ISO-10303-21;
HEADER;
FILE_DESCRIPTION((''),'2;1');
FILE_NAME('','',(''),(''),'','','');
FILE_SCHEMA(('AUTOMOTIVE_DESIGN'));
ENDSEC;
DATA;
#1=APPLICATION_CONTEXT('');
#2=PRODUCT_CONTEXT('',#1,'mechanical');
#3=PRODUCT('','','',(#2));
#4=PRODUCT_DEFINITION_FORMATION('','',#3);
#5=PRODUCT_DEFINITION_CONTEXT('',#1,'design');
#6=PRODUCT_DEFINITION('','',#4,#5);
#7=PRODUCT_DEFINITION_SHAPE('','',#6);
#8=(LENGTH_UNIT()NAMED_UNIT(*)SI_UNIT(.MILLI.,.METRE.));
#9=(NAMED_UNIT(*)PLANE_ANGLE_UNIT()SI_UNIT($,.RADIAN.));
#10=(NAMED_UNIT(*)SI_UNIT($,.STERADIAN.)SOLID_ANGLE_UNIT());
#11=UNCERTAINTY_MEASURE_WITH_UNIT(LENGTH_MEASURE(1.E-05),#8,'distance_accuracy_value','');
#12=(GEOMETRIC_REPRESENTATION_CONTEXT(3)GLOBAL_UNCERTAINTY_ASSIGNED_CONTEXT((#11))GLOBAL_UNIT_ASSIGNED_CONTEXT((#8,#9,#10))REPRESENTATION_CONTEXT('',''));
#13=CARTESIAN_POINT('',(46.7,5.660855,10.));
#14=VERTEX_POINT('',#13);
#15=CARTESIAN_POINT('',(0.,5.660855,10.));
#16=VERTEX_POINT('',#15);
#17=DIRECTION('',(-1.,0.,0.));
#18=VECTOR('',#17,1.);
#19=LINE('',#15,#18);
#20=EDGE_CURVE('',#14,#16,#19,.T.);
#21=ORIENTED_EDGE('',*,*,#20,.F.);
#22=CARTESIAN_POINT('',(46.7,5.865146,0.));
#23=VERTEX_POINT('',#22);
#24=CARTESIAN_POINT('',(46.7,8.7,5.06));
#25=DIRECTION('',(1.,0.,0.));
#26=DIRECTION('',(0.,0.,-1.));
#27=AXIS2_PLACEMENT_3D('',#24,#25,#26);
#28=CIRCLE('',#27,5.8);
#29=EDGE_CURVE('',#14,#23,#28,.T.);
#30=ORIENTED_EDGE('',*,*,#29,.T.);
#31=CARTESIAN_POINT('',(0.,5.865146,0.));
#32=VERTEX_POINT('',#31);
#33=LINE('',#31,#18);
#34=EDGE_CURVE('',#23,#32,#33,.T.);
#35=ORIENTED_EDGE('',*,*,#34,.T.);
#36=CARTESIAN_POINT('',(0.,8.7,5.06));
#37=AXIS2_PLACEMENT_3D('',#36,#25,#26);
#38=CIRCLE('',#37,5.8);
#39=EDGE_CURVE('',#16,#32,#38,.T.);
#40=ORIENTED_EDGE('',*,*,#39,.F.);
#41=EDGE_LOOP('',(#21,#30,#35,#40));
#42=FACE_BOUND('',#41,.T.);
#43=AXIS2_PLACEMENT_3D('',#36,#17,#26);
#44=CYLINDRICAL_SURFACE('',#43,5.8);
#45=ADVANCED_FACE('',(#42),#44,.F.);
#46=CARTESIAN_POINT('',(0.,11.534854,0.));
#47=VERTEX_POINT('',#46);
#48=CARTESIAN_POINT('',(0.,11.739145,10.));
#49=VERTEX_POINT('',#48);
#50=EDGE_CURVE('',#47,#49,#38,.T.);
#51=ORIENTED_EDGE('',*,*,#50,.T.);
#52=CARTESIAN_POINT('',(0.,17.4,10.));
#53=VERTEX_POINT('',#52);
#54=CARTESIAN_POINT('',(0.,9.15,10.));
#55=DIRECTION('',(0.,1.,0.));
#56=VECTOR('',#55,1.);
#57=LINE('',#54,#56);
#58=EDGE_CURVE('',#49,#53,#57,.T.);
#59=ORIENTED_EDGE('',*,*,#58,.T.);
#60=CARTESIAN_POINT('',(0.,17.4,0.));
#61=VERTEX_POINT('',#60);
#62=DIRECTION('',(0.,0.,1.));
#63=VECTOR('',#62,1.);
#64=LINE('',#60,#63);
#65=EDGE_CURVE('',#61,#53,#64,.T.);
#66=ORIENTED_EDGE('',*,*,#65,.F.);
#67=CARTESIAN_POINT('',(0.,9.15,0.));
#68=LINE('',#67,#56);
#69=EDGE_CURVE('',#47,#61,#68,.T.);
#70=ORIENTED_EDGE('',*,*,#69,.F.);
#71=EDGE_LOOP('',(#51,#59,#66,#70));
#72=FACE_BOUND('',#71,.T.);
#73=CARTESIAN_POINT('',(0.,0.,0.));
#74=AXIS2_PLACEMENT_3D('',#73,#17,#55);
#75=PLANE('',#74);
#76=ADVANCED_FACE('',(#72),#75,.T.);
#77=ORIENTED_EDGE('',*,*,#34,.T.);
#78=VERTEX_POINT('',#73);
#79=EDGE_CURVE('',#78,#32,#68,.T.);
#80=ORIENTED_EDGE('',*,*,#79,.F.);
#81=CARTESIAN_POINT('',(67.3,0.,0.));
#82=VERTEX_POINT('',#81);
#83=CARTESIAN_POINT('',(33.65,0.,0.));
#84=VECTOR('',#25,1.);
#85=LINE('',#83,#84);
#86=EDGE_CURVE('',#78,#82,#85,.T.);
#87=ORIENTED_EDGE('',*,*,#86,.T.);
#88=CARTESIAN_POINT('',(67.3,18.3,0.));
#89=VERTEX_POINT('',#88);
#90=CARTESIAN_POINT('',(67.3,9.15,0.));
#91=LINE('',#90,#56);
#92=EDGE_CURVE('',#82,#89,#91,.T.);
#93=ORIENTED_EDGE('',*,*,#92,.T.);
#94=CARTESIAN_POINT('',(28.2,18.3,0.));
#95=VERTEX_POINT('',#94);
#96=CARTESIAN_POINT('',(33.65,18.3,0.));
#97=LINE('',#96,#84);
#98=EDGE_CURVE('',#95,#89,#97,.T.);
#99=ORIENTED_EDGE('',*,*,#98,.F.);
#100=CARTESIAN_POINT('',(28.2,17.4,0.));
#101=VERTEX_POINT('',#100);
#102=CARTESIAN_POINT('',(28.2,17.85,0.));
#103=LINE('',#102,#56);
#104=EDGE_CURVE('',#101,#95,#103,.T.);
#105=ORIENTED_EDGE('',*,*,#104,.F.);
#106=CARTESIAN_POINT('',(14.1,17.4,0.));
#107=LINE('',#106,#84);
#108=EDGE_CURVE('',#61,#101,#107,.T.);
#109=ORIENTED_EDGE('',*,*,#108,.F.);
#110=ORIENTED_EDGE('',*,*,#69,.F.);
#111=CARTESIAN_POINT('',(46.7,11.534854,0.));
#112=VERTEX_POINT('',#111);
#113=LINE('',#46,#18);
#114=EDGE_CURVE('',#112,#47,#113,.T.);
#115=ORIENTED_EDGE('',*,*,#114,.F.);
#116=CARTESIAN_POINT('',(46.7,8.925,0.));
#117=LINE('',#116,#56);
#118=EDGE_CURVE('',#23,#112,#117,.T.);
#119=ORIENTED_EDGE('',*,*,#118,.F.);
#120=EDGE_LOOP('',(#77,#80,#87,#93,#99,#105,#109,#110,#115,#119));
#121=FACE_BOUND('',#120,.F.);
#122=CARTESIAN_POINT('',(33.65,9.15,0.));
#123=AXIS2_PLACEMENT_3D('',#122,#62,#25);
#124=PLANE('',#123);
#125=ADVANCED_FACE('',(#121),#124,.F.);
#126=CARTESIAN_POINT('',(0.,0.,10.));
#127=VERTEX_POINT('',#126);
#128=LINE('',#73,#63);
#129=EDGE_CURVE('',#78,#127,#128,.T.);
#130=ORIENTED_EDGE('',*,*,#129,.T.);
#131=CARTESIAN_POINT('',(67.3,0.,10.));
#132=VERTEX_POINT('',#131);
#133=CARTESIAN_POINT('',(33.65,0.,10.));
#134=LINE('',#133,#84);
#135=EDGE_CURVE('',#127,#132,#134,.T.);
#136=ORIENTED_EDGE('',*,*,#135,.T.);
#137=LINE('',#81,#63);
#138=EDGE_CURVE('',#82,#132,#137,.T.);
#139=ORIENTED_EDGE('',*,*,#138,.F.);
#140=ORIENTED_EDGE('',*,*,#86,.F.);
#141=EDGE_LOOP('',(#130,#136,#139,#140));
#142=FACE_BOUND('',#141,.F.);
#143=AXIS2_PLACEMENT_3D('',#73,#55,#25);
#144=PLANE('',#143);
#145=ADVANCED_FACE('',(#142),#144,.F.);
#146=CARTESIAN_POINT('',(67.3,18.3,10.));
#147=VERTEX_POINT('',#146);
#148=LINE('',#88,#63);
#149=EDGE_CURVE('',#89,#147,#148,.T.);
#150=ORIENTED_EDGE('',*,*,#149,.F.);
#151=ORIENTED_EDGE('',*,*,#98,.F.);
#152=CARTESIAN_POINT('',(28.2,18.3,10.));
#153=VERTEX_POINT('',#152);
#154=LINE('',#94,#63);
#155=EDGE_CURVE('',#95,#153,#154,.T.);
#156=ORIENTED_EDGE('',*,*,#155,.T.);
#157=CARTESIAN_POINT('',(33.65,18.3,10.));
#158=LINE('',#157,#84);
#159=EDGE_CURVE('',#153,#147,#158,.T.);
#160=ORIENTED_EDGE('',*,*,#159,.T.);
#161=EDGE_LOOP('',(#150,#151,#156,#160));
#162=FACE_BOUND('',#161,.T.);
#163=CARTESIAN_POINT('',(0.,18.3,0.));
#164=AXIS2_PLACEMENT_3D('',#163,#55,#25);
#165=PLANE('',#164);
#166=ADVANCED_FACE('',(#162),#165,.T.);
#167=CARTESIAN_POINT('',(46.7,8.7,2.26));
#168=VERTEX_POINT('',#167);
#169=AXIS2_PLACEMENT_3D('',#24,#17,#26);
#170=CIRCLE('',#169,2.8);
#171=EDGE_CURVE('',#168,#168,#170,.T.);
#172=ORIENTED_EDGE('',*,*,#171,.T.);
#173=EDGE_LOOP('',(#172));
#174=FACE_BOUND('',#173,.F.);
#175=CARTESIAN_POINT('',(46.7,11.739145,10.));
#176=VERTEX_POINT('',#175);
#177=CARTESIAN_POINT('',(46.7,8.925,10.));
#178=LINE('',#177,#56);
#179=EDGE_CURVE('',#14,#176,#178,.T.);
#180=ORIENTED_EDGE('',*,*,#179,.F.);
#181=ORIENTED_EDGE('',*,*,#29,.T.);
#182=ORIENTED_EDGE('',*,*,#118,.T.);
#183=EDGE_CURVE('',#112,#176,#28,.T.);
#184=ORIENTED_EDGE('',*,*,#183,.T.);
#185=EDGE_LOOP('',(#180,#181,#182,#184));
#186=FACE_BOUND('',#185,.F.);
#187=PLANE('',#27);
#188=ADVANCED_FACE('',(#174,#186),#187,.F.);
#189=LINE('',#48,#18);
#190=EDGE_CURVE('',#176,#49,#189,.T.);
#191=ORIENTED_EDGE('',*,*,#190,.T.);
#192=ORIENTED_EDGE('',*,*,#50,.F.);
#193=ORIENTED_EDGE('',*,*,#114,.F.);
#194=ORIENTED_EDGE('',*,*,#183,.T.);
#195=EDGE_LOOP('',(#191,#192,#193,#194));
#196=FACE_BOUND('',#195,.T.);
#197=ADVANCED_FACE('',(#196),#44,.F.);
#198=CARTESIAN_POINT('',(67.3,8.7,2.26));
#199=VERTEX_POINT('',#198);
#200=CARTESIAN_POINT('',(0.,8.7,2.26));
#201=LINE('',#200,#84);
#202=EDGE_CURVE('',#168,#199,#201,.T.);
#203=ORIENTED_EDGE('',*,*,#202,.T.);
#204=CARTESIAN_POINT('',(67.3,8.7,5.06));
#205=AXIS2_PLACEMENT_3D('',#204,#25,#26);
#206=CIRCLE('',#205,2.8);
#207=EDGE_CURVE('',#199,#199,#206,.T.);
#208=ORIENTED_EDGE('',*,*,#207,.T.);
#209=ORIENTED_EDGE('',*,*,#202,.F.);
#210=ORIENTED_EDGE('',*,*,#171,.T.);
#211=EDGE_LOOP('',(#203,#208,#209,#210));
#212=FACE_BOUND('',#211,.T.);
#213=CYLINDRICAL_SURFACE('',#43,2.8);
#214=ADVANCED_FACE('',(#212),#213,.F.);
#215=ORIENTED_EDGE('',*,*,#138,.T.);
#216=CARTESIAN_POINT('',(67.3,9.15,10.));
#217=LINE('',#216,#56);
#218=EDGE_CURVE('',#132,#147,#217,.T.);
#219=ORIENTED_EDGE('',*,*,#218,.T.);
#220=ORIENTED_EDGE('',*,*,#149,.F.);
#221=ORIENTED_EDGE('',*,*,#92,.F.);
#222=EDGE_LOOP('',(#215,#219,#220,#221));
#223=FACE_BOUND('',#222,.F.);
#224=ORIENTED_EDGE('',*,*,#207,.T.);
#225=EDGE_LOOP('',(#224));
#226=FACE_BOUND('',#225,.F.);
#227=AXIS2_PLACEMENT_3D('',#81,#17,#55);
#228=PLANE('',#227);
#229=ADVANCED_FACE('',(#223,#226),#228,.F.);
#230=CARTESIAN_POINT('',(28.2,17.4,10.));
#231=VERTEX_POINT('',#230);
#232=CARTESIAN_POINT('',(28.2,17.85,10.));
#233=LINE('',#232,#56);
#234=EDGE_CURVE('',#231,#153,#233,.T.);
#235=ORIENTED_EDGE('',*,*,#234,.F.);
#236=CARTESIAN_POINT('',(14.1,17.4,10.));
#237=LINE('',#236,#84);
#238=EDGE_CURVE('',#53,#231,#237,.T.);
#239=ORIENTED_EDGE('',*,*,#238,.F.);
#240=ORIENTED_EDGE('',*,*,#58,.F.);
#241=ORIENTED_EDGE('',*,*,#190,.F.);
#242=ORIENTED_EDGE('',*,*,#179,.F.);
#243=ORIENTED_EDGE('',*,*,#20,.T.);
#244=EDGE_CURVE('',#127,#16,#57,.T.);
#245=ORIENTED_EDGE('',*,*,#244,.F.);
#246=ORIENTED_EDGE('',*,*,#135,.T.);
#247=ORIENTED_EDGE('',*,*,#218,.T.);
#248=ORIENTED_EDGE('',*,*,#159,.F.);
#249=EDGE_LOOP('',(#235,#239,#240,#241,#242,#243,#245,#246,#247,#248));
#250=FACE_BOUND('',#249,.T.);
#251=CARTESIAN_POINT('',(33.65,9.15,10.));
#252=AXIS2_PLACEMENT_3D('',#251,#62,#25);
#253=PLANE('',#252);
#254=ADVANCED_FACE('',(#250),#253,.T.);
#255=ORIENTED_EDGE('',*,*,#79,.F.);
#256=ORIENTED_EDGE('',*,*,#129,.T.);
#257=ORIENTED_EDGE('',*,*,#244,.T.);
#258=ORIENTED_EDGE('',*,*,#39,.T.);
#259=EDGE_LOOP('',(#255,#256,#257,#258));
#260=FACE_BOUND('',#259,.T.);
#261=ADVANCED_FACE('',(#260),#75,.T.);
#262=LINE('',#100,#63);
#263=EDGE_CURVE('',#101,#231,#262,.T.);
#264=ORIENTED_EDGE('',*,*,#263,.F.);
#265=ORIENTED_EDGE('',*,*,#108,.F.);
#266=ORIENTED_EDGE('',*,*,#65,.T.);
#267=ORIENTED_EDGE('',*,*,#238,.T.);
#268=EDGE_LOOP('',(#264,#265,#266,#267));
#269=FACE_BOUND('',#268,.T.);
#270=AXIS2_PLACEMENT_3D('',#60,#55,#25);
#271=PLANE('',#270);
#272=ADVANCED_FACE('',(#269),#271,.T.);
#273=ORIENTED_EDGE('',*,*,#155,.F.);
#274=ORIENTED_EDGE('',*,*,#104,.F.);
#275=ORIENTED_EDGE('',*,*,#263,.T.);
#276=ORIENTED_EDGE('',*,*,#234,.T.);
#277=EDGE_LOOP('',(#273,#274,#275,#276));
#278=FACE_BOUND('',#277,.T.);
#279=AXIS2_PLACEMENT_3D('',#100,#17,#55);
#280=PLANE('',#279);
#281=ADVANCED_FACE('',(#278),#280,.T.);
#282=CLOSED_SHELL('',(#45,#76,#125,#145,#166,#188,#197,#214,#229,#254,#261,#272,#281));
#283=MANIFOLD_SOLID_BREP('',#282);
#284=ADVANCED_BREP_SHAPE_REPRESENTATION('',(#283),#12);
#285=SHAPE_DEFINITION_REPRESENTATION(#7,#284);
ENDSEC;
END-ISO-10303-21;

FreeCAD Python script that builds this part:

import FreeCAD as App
import Part
import Sketcher
Q = App.Units.Quantity

doc = App.newDocument("Part")
body = doc.addObject("PartDesign::Body", "Body")

# Sketch on YZ plane
sketch1 = body.newObject("Sketcher::SketchObject", "Sketch")
sketch1.AttachmentSupport = (doc.getObject("YZ_Plane"), [""])
sketch1.MapMode = "FlatFace"
sketch1.addGeometry(Part.Circle(App.Vector(8.7, 5.1, 0), App.Vector(0, 0, 1), 2.8), False)
sketch1.addConstraint([
    Sketcher.Constraint("Diameter", 0, Q("5.6 mm")),
    Sketcher.Constraint("DistanceX", -1, 1, 0, 3, Q("8.7 mm")),
    Sketcher.Constraint("DistanceY", -1, 1, 0, 3, Q("5.06 mm")),
])
pad1 = body.newObject("PartDesign::Pad", "Pad")
pad1.Profile = sketch1
pad1.Length = 67.3
body2 = doc.addObject("PartDesign::Body", "Body001")

# Sketch on YZ plane
sketch2 = body2.newObject("Sketcher::SketchObject", "Sketch001")
sketch2.AttachmentSupport = (doc.getObject("YZ_Plane001"), [""])
sketch2.MapMode = "FlatFace"
sketch2.addGeometry(Part.Circle(App.Vector(9, 5, 0), App.Vector(0, 0, 1), 6), False)
sketch2.addConstraint([
    Sketcher.Constraint("Diameter", 0, Q("11.6 mm")),
    Sketcher.Constraint("DistanceX", -1, 1, 0, 3, Q("8.7 mm")),
    Sketcher.Constraint("DistanceY", -1, 1, 0, 3, Q("5.06 mm")),
])
pad2 = body2.newObject("PartDesign::Pad", "Pad001")
pad2.Profile = sketch2
pad2.Length = 46.7
body3 = doc.addObject("PartDesign::Body", "Body002")

# Sketch on XY plane
sketch3 = body3.newObject("Sketcher::SketchObject", "Sketch002")
sketch3.AttachmentSupport = (doc.getObject("XY_Plane002"), [""])
sketch3.MapMode = "FlatFace"
sketch3.addGeometry([
    Part.LineSegment(App.Vector(0, 18.3, 0), App.Vector(0, 17.4, 0)),
    Part.LineSegment(App.Vector(0, 17.4, 0), App.Vector(28.2, 17.4, 0)),
    Part.LineSegment(App.Vector(28.2, 17.4, 0), App.Vector(28.2, 18.3, 0)),
    Part.LineSegment(App.Vector(28.2, 18.3, 0), App.Vector(0, 18.3, 0)),
], False)
sketch3.addConstraint([
    Sketcher.Constraint("Coincident", 0, 2, 1, 1),
    Sketcher.Constraint("Coincident", 1, 2, 2, 1),
    Sketcher.Constraint("Coincident", 2, 2, 3, 1),
    Sketcher.Constraint("Coincident", 3, 2, 0, 1),
    Sketcher.Constraint("Vertical", 0),
    Sketcher.Constraint("Horizontal", 1),
    Sketcher.Constraint("Vertical", 2),
    Sketcher.Constraint("Horizontal", 3),
    Sketcher.Constraint("PointOnObject", 0, 2, -2),
    Sketcher.Constraint("DistanceX", 1, 1, 1, 2, Q("28.2 mm")),
    Sketcher.Constraint("DistanceY", 0, 2, 0, 1, Q("0.9 mm")),
    Sketcher.Constraint("DistanceY", -1, 1, 0, 2, Q("17.4 mm")),
])
pad3 = body3.newObject("PartDesign::Pad", "Pad002")
pad3.Profile = sketch3
pad3.Length = 10
body4 = doc.addObject("PartDesign::Body", "Body003")

# Sketch on XY plane
sketch4 = body4.newObject("Sketcher::SketchObject", "Sketch003")
sketch4.AttachmentSupport = (doc.getObject("XY_Plane003"), [""])
sketch4.MapMode = "FlatFace"
sketch4.addGeometry([
    Part.LineSegment(App.Vector(0, 18, 0), App.Vector(0, 0, 0)),
    Part.LineSegment(App.Vector(0, 0, 0), App.Vector(67, 0, 0)),
    Part.LineSegment(App.Vector(67, 0, 0), App.Vector(67, 18, 0)),
    Part.LineSegment(App.Vector(67, 18, 0), App.Vector(0, 18, 0)),
], False)
sketch4.addConstraint([
    Sketcher.Constraint("Coincident", 0, 2, 1, 1),
    Sketcher.Constraint("Coincident", 1, 2, 2, 1),
    Sketcher.Constraint("Coincident", 2, 2, 3, 1),
    Sketcher.Constraint("Coincident", 3, 2, 0, 1),
    Sketcher.Constraint("Vertical", 0),
    Sketcher.Constraint("Horizontal", 1),
    Sketcher.Constraint("Vertical", 2),
    Sketcher.Constraint("Horizontal", 3),
    Sketcher.Constraint("Coincident", 0, 2, -1, 1),
    Sketcher.Constraint("DistanceX", 1, 1, 1, 2, Q("67.3 mm")),
    Sketcher.Constraint("DistanceY", 0, 2, 0, 1, Q("18.3 mm")),
])
pad4 = body4.newObject("PartDesign::Pad", "Pad003")
pad4.Profile = sketch4
pad4.Length = 10
doc.recompute()

boolean = body4.newObject("PartDesign::Boolean", "Boolean")
boolean.Type = "Cut"
boolean.addObjects([body3])
doc.recompute()

boolean2 = body4.newObject("PartDesign::Boolean", "Boolean001")
boolean2.Type = "Cut"
boolean2.addObjects([body2])
doc.recompute()

boolean3 = body4.newObject("PartDesign::Boolean", "Boolean002")
boolean3.Type = "Cut"
boolean3.addObjects([body])

doc.recompute()
